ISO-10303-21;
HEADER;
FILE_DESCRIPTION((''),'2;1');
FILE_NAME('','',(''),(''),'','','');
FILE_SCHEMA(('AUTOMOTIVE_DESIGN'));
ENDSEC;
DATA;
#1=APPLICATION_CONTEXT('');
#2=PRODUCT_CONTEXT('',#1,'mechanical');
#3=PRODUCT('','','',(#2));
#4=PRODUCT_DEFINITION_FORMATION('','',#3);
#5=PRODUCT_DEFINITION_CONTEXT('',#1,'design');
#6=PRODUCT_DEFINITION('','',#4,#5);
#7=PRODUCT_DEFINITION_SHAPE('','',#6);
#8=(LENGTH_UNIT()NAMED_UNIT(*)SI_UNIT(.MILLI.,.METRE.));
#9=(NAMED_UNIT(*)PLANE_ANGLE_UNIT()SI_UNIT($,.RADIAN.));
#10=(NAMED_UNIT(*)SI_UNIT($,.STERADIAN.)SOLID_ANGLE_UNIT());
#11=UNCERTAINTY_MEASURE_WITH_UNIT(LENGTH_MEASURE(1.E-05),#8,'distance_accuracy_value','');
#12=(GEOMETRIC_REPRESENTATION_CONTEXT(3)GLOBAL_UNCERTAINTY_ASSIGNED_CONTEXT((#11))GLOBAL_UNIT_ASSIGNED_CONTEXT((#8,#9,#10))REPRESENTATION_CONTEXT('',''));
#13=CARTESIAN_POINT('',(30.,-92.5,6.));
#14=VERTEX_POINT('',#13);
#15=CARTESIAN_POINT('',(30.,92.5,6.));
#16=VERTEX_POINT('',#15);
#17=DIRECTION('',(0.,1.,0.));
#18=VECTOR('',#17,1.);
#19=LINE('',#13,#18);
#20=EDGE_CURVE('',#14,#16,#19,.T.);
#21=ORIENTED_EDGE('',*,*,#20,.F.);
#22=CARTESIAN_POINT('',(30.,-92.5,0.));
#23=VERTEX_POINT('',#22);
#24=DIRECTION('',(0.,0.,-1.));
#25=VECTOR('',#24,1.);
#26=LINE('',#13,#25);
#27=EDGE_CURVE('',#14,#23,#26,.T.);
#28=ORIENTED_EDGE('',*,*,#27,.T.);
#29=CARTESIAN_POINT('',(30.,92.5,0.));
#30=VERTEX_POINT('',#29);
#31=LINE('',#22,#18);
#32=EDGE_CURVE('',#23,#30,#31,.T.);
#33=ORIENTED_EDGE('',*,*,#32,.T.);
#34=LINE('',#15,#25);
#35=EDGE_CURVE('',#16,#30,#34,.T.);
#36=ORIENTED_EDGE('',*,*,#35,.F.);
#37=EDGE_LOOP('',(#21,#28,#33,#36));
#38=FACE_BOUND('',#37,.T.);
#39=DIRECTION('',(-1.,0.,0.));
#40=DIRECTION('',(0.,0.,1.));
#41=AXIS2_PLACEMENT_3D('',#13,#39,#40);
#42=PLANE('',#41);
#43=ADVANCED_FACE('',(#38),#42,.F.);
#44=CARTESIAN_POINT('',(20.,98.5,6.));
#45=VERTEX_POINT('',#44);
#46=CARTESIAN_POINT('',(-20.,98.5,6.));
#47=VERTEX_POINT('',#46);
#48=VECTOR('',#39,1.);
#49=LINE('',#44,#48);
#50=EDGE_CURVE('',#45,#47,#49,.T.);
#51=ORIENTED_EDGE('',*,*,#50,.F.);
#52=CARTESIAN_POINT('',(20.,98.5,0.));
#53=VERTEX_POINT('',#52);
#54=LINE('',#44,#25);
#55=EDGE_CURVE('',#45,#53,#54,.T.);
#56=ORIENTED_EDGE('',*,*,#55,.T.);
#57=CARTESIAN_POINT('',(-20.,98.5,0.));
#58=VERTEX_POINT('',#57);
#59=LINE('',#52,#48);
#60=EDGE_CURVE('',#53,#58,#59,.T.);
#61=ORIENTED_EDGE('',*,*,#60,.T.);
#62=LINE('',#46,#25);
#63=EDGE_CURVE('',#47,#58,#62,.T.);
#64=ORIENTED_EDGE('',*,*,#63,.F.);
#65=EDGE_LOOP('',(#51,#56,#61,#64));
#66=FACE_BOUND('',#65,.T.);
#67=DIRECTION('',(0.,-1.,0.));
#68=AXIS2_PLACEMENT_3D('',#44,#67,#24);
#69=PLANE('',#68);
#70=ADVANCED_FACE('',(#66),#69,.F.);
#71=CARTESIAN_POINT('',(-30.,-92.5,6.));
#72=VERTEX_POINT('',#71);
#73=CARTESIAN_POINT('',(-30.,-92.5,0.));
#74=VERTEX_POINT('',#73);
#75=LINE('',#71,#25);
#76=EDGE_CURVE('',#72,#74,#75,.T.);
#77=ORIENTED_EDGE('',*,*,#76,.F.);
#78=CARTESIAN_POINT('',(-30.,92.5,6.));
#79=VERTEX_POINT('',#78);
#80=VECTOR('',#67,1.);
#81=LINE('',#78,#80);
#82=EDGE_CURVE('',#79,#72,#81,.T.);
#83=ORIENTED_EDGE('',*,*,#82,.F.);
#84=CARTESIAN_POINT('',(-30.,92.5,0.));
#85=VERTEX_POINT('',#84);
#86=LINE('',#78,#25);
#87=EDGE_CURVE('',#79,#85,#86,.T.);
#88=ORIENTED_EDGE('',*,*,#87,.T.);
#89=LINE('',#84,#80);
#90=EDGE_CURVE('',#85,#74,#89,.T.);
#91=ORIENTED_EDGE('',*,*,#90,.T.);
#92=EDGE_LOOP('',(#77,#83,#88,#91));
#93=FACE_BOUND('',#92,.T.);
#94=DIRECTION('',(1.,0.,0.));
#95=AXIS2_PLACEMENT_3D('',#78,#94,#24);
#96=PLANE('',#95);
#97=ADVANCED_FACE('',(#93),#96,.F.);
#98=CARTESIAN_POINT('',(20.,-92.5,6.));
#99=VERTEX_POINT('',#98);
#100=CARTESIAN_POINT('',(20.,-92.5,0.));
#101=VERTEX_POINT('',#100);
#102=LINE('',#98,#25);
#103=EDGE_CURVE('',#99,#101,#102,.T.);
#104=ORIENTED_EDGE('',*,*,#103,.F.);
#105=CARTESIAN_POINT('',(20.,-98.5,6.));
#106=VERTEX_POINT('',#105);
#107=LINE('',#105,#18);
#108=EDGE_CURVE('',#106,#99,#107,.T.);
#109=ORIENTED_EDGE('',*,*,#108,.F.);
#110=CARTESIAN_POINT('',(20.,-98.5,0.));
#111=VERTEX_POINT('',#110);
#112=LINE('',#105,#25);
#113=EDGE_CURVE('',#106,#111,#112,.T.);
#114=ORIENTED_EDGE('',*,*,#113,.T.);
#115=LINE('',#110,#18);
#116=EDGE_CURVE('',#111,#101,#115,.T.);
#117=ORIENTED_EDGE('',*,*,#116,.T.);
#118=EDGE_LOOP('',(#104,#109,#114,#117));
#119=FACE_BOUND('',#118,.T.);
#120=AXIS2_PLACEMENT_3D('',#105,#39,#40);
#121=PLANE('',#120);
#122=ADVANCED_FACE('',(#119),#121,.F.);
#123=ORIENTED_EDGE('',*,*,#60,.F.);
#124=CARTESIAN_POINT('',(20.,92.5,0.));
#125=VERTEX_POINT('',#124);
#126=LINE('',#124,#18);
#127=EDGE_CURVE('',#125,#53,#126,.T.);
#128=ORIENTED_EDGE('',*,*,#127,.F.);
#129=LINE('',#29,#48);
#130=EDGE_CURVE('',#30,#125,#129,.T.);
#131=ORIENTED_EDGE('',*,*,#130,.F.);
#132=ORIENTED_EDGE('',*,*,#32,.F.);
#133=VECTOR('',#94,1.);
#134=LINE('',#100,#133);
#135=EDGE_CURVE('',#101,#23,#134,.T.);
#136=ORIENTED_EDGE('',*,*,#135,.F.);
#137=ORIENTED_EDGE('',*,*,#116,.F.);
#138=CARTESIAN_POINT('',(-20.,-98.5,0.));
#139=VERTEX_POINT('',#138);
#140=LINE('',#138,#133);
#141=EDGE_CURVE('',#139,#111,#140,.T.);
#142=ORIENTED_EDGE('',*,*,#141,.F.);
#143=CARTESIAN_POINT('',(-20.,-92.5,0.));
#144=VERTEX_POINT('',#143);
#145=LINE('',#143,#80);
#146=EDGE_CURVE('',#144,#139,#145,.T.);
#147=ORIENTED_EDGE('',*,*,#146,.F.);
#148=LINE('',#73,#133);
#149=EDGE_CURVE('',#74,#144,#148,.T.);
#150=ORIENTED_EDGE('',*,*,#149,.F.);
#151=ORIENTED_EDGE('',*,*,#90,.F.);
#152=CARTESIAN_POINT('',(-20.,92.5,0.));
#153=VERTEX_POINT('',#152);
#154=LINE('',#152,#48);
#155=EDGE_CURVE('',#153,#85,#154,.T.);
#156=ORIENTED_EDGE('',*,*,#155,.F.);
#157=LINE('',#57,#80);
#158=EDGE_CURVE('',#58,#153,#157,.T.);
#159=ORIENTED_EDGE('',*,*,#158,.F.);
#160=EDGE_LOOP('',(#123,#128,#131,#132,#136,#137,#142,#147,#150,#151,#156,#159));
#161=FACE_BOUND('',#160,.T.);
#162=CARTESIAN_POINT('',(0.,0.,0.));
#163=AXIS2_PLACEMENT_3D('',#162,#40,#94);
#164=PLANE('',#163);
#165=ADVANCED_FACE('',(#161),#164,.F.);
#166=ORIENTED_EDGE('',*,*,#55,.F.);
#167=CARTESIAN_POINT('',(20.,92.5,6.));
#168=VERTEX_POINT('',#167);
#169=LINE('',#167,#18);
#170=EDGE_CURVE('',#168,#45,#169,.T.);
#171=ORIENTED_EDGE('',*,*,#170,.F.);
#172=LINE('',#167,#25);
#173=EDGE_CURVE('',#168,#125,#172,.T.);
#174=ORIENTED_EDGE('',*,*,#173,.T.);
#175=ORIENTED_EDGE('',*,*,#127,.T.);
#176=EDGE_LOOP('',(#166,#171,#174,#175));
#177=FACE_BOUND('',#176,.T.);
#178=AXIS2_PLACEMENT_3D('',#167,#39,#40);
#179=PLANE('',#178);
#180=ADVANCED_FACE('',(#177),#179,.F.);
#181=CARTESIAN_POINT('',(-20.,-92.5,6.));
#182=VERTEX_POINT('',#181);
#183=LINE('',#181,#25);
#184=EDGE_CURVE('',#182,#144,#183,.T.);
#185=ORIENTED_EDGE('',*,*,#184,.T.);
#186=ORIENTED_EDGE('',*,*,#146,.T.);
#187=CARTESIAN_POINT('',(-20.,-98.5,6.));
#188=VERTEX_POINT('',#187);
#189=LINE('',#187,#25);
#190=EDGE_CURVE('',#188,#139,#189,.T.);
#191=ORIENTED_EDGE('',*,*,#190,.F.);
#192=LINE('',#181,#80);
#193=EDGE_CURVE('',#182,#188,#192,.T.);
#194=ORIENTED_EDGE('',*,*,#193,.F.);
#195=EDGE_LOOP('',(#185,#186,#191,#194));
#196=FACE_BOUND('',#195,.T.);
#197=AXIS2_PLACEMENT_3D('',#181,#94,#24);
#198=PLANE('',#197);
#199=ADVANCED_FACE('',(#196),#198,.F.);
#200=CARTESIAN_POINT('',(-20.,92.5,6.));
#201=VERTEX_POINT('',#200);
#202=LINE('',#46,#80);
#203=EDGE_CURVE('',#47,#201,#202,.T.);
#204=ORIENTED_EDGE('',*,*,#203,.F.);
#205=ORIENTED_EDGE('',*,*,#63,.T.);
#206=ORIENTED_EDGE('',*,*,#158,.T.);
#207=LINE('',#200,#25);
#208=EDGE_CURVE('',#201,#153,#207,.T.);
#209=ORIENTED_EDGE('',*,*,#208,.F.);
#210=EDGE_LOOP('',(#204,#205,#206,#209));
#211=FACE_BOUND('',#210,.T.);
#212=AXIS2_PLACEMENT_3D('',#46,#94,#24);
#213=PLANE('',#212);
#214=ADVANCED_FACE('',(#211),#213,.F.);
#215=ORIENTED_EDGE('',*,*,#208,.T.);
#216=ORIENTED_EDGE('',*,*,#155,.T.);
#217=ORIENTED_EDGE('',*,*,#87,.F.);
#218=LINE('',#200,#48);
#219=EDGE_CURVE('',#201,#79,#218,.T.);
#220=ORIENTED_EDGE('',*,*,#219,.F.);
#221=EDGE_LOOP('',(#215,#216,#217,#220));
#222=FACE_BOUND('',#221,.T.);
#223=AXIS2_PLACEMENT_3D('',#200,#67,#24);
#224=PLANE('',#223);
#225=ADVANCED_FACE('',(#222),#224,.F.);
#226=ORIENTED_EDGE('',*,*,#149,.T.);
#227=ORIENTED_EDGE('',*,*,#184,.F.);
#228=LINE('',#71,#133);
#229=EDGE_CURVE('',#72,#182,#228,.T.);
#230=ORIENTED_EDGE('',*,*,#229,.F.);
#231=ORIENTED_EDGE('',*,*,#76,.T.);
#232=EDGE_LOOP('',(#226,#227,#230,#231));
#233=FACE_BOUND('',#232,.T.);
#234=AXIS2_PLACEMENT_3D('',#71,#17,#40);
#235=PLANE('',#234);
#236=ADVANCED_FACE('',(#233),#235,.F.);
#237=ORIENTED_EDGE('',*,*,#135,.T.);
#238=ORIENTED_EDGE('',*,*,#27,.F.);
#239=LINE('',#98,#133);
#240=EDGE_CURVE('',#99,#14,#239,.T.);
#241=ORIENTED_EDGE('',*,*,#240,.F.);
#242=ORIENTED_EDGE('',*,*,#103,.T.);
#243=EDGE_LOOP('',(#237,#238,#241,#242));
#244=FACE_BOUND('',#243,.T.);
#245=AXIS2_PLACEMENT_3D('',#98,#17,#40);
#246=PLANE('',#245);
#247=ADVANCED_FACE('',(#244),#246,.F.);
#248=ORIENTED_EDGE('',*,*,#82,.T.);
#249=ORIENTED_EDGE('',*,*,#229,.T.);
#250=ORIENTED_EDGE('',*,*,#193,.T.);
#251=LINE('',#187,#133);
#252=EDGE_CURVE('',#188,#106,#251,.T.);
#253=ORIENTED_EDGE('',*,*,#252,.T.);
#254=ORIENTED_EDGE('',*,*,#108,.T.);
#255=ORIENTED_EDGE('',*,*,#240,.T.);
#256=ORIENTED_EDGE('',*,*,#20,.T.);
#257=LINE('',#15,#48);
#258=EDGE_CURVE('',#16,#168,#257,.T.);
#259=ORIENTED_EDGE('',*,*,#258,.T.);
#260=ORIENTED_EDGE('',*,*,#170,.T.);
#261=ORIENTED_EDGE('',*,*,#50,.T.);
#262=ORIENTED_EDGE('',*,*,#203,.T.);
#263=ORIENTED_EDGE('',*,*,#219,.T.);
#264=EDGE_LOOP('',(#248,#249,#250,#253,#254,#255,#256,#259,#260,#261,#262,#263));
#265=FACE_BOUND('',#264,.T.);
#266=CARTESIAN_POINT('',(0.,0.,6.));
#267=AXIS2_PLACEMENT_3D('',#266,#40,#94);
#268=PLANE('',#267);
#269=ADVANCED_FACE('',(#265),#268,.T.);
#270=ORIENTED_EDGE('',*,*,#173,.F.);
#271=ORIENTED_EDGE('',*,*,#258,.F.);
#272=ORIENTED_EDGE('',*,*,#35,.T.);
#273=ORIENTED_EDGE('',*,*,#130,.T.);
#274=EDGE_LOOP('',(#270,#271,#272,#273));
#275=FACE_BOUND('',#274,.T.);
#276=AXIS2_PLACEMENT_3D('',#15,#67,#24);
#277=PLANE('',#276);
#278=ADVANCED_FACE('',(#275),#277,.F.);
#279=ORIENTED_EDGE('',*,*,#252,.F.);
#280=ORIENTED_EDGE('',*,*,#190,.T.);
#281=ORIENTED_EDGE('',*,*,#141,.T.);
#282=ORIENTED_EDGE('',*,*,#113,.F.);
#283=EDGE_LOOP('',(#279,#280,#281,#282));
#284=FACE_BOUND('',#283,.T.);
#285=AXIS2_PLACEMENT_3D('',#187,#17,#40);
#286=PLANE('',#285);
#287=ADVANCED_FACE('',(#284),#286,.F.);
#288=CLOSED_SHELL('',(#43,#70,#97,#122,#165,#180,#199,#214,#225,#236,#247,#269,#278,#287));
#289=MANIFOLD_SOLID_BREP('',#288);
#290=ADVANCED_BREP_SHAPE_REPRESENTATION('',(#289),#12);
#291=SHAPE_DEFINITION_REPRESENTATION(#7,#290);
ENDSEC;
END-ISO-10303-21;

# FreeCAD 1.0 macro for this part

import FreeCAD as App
import Part
import Sketcher

V = App.Vector


def add_polygon(sketch, points):
    """Adds a closed chain of lines whose ends are joined by coincident constraints."""
    first, n = sketch.GeometryCount, len(points)
    for a, b in zip(points, points[1:] + points[:1]):
        sketch.addGeometry(Part.LineSegment(App.Vector(*a, 0), App.Vector(*b, 0)), False)
    for i in range(n):
        sketch.addConstraint(Sketcher.Constraint("Coincident", first + i, 2, first + (i + 1) % n, 1))

doc = App.newDocument("Part")
params = doc.addObject("Spreadsheet::Sheet", "Params")
for row, (alias, value) in enumerate([
    ("sketch1_width", "10 mm"),
    ("sketch1_width2", "40 mm"),
    ("sketch1_height", "185 mm"),
    ("sketch1_height2", "6 mm"),
    ("pad1_length", "6 mm"),
], start=1):
    params.set(f"A{row}", alias)
    params.set(f"B{row}", "=" + value)
    params.setAlias(f"B{row}", alias)

body = doc.addObject("PartDesign::Body", "Body")

# Sketch on XY plane
sketch1 = body.newObject("Sketcher::SketchObject", "Sketch")
sketch1.AttachmentSupport = (doc.getObject("XY_Plane"), [""])
sketch1.MapMode = "FlatFace"
add_polygon(sketch1, [(-30, 92), (-30, -92), (-20, -92), (-20, -98), (20, -98), (20, -92), (30, -92), (30, 92), (20, 92), (20, 98), (-20, 98), (-20, 92)])  # lines 0-11
sketch1.addConstraint([
    Sketcher.Constraint("Vertical", 0),
    Sketcher.Constraint("Horizontal", 1),
    Sketcher.Constraint("Vertical", 2),
    Sketcher.Constraint("Horizontal", 3),
    Sketcher.Constraint("Vertical", 4),
    Sketcher.Constraint("Horizontal", 5),
    Sketcher.Constraint("Vertical", 6),
    Sketcher.Constraint("Horizontal", 7),
    Sketcher.Constraint("Vertical", 8),
    Sketcher.Constraint("Horizontal", 9),
    Sketcher.Constraint("Vertical", 10),
    Sketcher.Constraint("Horizontal", 11),
    Sketcher.Constraint("Symmetric", 0, 2, 6, 2, -1, 1),
    Sketcher.Constraint("Symmetric", 2, 2, 8, 2, -1, 1),
    Sketcher.Constraint("Symmetric", 4, 2, 10, 2, -1, 1),
    Sketcher.Constraint("Symmetric", 1, 2, 4, 2, -2),
    Sketcher.Constraint("DistanceX", 1, 1, 1, 2, 10.0),
    Sketcher.Constraint("DistanceX", 3, 1, 3, 2, 40.0),
    Sketcher.Constraint("DistanceY", 0, 2, 0, 1, 185.0),
    Sketcher.Constraint("DistanceY", 2, 2, 2, 1, 6.0),
])
sketch1.setExpression("Constraints[28]", "Params.sketch1_width")
sketch1.setExpression("Constraints[29]", "Params.sketch1_width2")
sketch1.setExpression("Constraints[30]", "Params.sketch1_height")
sketch1.setExpression("Constraints[31]", "Params.sketch1_height2")
pad1 = body.newObject("PartDesign::Pad", "Pad")
pad1.Profile = sketch1
pad1.setExpression("Length", "Params.pad1_length")

doc.recompute()
